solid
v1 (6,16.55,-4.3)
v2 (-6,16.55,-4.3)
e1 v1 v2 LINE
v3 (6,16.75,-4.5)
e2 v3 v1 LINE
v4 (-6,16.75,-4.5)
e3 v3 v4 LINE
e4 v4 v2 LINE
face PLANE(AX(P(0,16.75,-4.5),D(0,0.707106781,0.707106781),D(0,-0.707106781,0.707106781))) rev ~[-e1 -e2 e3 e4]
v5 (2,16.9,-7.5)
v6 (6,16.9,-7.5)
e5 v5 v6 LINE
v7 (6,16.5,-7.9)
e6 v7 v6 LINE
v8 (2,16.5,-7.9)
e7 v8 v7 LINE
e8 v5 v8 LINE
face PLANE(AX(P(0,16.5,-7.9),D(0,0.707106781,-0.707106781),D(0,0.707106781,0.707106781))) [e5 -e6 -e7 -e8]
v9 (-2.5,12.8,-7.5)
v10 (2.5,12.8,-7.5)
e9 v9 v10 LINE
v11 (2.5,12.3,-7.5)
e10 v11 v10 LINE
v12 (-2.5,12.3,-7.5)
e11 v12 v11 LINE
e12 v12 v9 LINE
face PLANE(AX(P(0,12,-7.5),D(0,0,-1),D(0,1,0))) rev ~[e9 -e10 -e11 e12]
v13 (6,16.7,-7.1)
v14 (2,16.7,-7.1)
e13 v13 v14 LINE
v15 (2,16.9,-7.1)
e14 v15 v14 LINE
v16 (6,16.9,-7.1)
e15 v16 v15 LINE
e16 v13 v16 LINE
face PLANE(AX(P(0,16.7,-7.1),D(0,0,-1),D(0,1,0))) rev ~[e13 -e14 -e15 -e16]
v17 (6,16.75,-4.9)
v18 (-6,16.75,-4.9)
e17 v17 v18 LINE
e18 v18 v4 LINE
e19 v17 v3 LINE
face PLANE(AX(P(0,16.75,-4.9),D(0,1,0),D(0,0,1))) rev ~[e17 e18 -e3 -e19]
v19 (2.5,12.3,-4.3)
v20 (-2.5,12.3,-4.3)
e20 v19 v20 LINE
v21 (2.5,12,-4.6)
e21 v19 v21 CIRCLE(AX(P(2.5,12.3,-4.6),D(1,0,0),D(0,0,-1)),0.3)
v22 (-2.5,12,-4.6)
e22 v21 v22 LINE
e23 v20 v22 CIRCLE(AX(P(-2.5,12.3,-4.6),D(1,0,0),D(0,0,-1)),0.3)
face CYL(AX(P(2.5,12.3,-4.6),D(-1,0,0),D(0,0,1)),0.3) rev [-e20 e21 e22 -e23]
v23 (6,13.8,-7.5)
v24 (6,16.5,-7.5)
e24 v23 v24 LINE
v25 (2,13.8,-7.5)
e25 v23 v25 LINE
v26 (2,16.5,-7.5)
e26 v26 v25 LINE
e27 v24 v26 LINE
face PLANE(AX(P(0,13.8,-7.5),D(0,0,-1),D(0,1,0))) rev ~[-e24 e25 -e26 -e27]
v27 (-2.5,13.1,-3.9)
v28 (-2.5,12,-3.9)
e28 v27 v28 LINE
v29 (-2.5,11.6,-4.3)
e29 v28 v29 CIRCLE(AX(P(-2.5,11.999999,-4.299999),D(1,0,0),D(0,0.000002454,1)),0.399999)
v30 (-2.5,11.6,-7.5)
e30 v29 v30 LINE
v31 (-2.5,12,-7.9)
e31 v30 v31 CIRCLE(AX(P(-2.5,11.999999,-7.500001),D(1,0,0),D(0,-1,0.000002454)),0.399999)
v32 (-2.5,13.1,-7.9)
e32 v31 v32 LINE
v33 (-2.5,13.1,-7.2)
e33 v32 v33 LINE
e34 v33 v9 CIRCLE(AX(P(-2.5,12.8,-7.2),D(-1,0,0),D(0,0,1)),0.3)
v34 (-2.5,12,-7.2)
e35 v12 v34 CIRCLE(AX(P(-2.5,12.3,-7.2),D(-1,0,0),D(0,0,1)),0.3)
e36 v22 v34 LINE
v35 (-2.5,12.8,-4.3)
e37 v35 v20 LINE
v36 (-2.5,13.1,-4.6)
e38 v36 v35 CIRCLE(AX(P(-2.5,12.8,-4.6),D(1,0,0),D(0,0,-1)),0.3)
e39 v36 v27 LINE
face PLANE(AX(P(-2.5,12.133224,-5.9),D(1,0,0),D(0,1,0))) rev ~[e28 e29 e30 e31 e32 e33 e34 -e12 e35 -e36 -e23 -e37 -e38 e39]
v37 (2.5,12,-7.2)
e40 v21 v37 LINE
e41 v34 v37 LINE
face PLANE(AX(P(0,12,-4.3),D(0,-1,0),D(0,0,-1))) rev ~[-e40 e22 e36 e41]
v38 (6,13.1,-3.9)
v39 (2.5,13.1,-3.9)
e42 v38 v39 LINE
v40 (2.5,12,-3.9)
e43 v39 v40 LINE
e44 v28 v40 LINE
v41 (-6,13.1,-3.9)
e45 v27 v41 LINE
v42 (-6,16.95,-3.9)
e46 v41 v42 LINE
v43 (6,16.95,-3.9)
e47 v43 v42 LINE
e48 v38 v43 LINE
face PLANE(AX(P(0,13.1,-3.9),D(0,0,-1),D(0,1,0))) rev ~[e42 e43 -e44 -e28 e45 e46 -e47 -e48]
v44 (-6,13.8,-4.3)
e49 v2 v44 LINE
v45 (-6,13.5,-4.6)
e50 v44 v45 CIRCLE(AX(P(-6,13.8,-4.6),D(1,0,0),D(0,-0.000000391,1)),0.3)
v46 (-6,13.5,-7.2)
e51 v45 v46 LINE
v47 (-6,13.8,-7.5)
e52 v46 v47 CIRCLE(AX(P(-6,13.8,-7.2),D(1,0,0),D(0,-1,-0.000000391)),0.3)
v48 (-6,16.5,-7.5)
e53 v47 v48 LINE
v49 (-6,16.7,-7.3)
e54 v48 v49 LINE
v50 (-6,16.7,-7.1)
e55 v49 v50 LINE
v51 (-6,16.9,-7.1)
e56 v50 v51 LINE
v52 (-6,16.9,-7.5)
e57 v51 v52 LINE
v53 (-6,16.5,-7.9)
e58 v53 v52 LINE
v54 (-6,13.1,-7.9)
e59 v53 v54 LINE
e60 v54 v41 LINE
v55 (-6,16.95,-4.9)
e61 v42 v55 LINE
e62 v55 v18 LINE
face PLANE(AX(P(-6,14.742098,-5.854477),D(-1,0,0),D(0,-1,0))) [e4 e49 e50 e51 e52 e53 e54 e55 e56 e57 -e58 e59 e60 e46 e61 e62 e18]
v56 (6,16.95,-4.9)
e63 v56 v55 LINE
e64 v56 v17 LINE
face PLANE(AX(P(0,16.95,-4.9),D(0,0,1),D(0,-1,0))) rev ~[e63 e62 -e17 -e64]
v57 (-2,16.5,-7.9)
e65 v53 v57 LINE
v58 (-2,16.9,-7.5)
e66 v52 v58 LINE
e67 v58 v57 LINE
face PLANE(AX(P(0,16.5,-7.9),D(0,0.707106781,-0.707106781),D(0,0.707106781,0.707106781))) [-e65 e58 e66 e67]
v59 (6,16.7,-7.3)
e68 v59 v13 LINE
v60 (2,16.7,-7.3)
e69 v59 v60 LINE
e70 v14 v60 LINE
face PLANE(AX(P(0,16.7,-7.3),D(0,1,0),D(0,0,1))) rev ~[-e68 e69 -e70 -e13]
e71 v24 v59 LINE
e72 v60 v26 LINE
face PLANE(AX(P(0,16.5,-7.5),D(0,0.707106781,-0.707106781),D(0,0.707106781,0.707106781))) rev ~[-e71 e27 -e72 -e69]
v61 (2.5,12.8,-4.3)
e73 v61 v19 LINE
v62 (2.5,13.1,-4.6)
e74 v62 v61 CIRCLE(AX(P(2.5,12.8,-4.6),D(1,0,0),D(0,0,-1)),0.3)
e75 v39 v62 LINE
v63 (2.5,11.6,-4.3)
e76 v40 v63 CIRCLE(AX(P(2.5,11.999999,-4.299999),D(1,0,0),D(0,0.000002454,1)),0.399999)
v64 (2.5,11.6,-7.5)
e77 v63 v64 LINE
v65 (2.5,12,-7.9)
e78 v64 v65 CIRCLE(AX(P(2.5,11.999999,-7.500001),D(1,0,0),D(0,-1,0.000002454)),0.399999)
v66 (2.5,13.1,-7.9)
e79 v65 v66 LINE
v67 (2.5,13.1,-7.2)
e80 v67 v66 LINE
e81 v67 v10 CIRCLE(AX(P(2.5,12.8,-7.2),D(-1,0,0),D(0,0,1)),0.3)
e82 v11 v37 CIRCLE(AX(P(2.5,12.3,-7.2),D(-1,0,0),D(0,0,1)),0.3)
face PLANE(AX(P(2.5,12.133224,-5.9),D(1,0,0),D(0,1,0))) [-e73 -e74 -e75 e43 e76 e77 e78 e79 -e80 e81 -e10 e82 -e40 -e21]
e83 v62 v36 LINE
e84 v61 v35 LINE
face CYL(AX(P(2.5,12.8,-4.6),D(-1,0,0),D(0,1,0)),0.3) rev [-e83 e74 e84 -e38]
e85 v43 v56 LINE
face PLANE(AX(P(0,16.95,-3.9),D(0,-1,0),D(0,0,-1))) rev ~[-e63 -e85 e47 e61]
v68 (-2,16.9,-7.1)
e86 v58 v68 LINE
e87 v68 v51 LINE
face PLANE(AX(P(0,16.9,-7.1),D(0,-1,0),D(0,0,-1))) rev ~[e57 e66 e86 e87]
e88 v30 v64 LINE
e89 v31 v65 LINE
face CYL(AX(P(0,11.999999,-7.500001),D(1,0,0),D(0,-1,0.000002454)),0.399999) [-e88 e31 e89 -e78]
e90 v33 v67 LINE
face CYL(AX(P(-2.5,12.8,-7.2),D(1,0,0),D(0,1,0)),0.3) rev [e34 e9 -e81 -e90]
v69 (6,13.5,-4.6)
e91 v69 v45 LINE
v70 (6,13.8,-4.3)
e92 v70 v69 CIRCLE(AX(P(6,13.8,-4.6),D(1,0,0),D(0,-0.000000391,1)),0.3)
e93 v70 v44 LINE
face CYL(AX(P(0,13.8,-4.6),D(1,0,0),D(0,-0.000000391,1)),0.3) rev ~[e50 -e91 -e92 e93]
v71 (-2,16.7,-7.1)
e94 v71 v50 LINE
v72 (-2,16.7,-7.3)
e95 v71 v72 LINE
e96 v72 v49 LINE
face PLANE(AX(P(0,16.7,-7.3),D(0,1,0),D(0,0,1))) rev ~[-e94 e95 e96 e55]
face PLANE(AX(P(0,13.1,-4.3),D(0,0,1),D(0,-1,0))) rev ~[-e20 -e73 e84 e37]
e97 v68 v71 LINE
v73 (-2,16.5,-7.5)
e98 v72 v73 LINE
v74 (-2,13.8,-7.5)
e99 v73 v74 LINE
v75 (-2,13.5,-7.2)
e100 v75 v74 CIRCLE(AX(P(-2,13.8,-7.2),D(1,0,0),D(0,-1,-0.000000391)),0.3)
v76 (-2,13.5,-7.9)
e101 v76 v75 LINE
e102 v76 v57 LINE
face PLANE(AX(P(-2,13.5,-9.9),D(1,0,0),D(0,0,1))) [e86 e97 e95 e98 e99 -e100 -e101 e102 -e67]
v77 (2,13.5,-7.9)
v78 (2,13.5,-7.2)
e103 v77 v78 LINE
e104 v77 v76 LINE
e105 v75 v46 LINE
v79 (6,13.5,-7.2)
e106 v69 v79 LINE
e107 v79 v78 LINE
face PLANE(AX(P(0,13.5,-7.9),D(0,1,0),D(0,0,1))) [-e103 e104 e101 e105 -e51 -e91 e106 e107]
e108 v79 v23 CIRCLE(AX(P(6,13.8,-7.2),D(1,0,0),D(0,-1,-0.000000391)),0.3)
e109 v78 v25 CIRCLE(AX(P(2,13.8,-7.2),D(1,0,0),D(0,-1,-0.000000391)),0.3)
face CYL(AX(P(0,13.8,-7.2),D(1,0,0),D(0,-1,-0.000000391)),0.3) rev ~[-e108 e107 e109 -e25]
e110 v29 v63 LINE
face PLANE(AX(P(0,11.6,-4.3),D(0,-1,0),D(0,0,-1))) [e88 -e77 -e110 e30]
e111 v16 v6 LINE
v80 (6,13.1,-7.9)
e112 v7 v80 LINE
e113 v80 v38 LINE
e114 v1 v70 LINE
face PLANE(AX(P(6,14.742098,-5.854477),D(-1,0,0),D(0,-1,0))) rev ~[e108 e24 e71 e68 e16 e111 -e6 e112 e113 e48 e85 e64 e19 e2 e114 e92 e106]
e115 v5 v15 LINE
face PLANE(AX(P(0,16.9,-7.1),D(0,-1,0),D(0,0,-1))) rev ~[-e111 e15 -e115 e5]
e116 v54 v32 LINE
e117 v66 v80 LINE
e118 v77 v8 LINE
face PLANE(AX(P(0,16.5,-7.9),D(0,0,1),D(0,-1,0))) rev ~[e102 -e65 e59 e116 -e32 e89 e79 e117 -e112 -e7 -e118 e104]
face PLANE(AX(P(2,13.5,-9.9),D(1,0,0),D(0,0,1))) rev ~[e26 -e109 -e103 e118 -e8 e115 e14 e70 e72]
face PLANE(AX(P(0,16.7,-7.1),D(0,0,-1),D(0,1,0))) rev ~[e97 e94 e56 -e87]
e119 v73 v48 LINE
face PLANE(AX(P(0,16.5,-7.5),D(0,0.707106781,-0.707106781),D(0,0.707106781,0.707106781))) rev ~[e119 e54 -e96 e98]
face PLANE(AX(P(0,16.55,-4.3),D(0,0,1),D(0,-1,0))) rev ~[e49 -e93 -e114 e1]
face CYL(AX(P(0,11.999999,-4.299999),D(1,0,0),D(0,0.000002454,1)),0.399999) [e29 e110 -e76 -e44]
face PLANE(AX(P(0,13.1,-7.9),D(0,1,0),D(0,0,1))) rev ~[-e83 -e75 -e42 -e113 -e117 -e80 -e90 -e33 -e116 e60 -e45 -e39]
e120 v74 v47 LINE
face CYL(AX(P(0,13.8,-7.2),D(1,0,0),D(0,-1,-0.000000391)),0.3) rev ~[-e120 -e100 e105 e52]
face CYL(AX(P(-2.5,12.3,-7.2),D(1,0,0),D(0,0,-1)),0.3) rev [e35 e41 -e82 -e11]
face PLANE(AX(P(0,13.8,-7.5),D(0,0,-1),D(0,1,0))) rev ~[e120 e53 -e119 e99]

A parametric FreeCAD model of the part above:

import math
import FreeCAD as App
import Part
import Sketcher
Q = App.Units.Quantity


def edges_at(feature, points):
    """Names of the edges that pass closest to the given points."""
    edges = feature.Shape.Edges
    near = lambda p: min(range(len(edges)), key=lambda i: edges[i].distToShape(Part.Vertex(*p))[0])
    return sorted({f"Edge{near(p) + 1}" for p in points})


def add_polygon(sketch, points):
    """Adds a closed chain of lines whose ends are joined by coincident constraints."""
    first, n = sketch.GeometryCount, len(points)
    for a, b in zip(points, points[1:] + points[:1]):
        sketch.addGeometry(Part.LineSegment(App.Vector(*a, 0), App.Vector(*b, 0)), False)
    for i in range(n):
        sketch.addConstraint(Sketcher.Constraint("Coincident", first + i, 2, first + (i + 1) % n, 1))

doc = App.newDocument("Part")
body = doc.addObject("PartDesign::Body", "Body")

# Sketch on YZ plane
sketch1 = body.newObject("Sketcher::SketchObject", "Sketch")
sketch1.AttachmentSupport = (doc.getObject("YZ_Plane"), [""])
sketch1.MapMode = "FlatFace"
sketch1.addGeometry([
    Part.LineSegment(App.Vector(13.1, -3.9, 0), App.Vector(13.1, -7.9, 0)),  # 0
    Part.LineSegment(App.Vector(13.1, -7.9, 0), App.Vector(16.5, -7.9, 0)),  # 1
    Part.LineSegment(App.Vector(16.5, -7.9, 0), App.Vector(16.9, -7.5, 0)),  # 2
    Part.LineSegment(App.Vector(16.9, -7.5, 0), App.Vector(16.9, -7.1, 0)),  # 3
    Part.LineSegment(App.Vector(16.9, -7.1, 0), App.Vector(16.7, -7.1, 0)),  # 4
    Part.LineSegment(App.Vector(16.7, -7.1, 0), App.Vector(16.7, -7.3, 0)),  # 5
    Part.LineSegment(App.Vector(16.7, -7.3, 0), App.Vector(16.5, -7.5, 0)),  # 6
    Part.LineSegment(App.Vector(16.5, -7.5, 0), App.Vector(13.8, -7.5, 0)),  # 7
    Part.ArcOfCircle(Part.Circle(App.Vector(13.8, -7.2, 0), App.Vector(0, 0, 1), 0.3), math.radians(-180), math.radians(-90)),  # 8
    Part.LineSegment(App.Vector(13.5, -7.2, 0), App.Vector(13.5, -4.6, 0)),  # 9
    Part.ArcOfCircle(Part.Circle(App.Vector(13.8, -4.6, 0), App.Vector(0, 0, 1), 0.3), math.radians(90), math.radians(180)),  # 10
    Part.LineSegment(App.Vector(13.8, -4.3, 0), App.Vector(16.55, -4.3, 0)),  # 11
    Part.LineSegment(App.Vector(16.55, -4.3, 0), App.Vector(16.75, -4.5, 0)),  # 12
    Part.LineSegment(App.Vector(16.75, -4.5, 0), App.Vector(16.75, -4.9, 0)),  # 13
    Part.LineSegment(App.Vector(16.75, -4.9, 0), App.Vector(16.95, -4.9, 0)),  # 14
    Part.LineSegment(App.Vector(16.95, -4.9, 0), App.Vector(16.95, -3.9, 0)),  # 15
    Part.LineSegment(App.Vector(16.95, -3.9, 0), App.Vector(13.1, -3.9, 0)),  # 16
], False)
sketch1.addConstraint([
    Sketcher.Constraint("Coincident", 0, 2, 1, 1),
    Sketcher.Constraint("Coincident", 1, 2, 2, 1),
    Sketcher.Constraint("Coincident", 2, 2, 3, 1),
    Sketcher.Constraint("Coincident", 3, 2, 4, 1),
    Sketcher.Constraint("Coincident", 4, 2, 5, 1),
    Sketcher.Constraint("Coincident", 5, 2, 6, 1),
    Sketcher.Constraint("Coincident", 6, 2, 7, 1),
    Sketcher.Constraint("Tangent", 7, 2, 8, 2),
    Sketcher.Constraint("Tangent", 8, 1, 9, 1),
    Sketcher.Constraint("Tangent", 9, 2, 10, 2),
    Sketcher.Constraint("Tangent", 10, 1, 11, 1),
    Sketcher.Constraint("Coincident", 11, 2, 12, 1),
    Sketcher.Constraint("Coincident", 12, 2, 13, 1),
    Sketcher.Constraint("Coincident", 13, 2, 14, 1),
    Sketcher.Constraint("Coincident", 14, 2, 15, 1),
    Sketcher.Constraint("Coincident", 15, 2, 16, 1),
    Sketcher.Constraint("Coincident", 16, 2, 0, 1),
    Sketcher.Constraint("Vertical", 0),
    Sketcher.Constraint("Horizontal", 1),
    Sketcher.Constraint("Vertical", 3),
    Sketcher.Constraint("Horizontal", 4),
    Sketcher.Constraint("Vertical", 5),
    Sketcher.Constraint("Horizontal", 7),
    Sketcher.Constraint("Vertical", 9),
    Sketcher.Constraint("Horizontal", 11),
    Sketcher.Constraint("Vertical", 13),
    Sketcher.Constraint("Horizontal", 14),
    Sketcher.Constraint("Vertical", 15),
    Sketcher.Constraint("Horizontal", 16),
    Sketcher.Constraint("Equal", 8, 10),
    Sketcher.Constraint("Parallel", 2, 6),
    Sketcher.Constraint("Perpendicular", 6, 12),
    Sketcher.Constraint("Horizontal", 2, 2, 6, 2),
    Sketcher.Constraint("Vertical", 1, 2, 6, 2),
    Sketcher.Constraint("Equal", 4, 14),
    Sketcher.Constraint("Equal", 14, 5),
    Sketcher.Constraint("Equal", 3, 13),
    Sketcher.Constraint("Equal", 6, 12),
    Sketcher.Constraint("Radius", 8, 0.3),
    Sketcher.Constraint("DistanceY", 0, 2, 0, 1, 4.0),
    Sketcher.Constraint("DistanceY", 15, 1, 15, 2, 1.0),
    Sketcher.Constraint("Angle", 2, Q("45 deg")),
    Sketcher.Constraint("DistanceX", 1, 1, 1, 2, 3.4),
    Sketcher.Constraint("DistanceX", 4, 2, 4, 1, 0.2),
    Sketcher.Constraint("DistanceX", 7, 2, 7, 1, 2.7),
    Sketcher.Constraint("DistanceY", 3, 1, 3, 2, 0.4),
    Sketcher.Constraint("DistanceX", 11, 1, 11, 2, 2.75),
    Sketcher.Constraint("DistanceX", -1, 1, 8, 3, 13.8),
    Sketcher.Constraint("DistanceY", 8, 3, -1, 1, 7.2),
])
pad1 = body.newObject("PartDesign::Pad", "Pad")
pad1.Profile = sketch1
pad1.Length = 12
pad1.Midplane = True

# Sketch on XZ plane
sketch2 = body.newObject("Sketcher::SketchObject", "Sketch001")
sketch2.AttachmentSupport = (doc.getObject("XZ_Plane"), [""])
sketch2.MapMode = "FlatFace"
sketch2.AttachmentOffset = App.Placement(App.Vector(0, 0, -13.5), App.Rotation())
add_polygon(sketch2, [(2, -9.9), (-2, -9.9), (-2, -5.9), (2, -5.9)])  # lines 0-3
sketch2.addConstraint([
    Sketcher.Constraint("Horizontal", 0),
    Sketcher.Constraint("Vertical", 1),
    Sketcher.Constraint("Horizontal", 2),
    Sketcher.Constraint("Vertical", 3),
    Sketcher.Constraint("Equal", 2, 1),
    Sketcher.Constraint("DistanceX", 0, 2, 0, 1, 4.0),
    Sketcher.Constraint("DistanceX", 0, 2, -1, 1, 2.0),
    Sketcher.Constraint("DistanceY", 0, 2, -1, 1, 9.9),
])
pocket1 = body.newObject("PartDesign::Pocket", "Pocket")
pocket1.Profile = sketch2
pocket1.Type = "ThroughAll"

# Sketch on YZ plane
sketch3 = body.newObject("Sketcher::SketchObject", "Sketch002")
sketch3.AttachmentSupport = (doc.getObject("YZ_Plane"), [""])
sketch3.MapMode = "FlatFace"
sketch3.addGeometry([
    Part.LineSegment(App.Vector(13.1, -3.9, 0), App.Vector(12, -3.9, 0)),  # 0
    Part.ArcOfCircle(Part.Circle(App.Vector(12, -4.3, 0), App.Vector(0, 0, 1), 0.4), math.radians(90), math.radians(180)),  # 1
    Part.LineSegment(App.Vector(11.6, -4.3, 0), App.Vector(11.6, -7.5, 0)),  # 2
    Part.ArcOfCircle(Part.Circle(App.Vector(12, -7.5, 0), App.Vector(0, 0, 1), 0.4), math.radians(180), math.radians(270)),  # 3
    Part.LineSegment(App.Vector(12, -7.9, 0), App.Vector(13.1, -7.9, 0)),  # 4
    Part.LineSegment(App.Vector(13.1, -7.9, 0), App.Vector(13.1, -7.5, 0)),  # 5
    Part.LineSegment(App.Vector(13.1, -7.5, 0), App.Vector(12, -7.5, 0)),  # 6
    Part.LineSegment(App.Vector(12, -7.5, 0), App.Vector(12, -4.3, 0)),  # 7
    Part.LineSegment(App.Vector(12, -4.3, 0), App.Vector(13.1, -4.3, 0)),  # 8
    Part.LineSegment(App.Vector(13.1, -4.3, 0), App.Vector(13.1, -3.9, 0)),  # 9
], False)
sketch3.addConstraint([
    Sketcher.Constraint("Coincident", 0, 2, 1, 1),
    Sketcher.Constraint("Coincident", 1, 2, 2, 1),
    Sketcher.Constraint("Coincident", 2, 2, 3, 1),
    Sketcher.Constraint("Coincident", 3, 2, 4, 1),
    Sketcher.Constraint("Coincident", 4, 2, 5, 1),
    Sketcher.Constraint("Coincident", 5, 2, 6, 1),
    Sketcher.Constraint("Coincident", 6, 2, 7, 1),
    Sketcher.Constraint("Coincident", 7, 2, 8, 1),
    Sketcher.Constraint("Coincident", 8, 2, 9, 1),
    Sketcher.Constraint("Coincident", 9, 2, 0, 1),
    Sketcher.Constraint("Horizontal", 0),
    Sketcher.Constraint("Vertical", 2),
    Sketcher.Constraint("Horizontal", 4),
    Sketcher.Constraint("Vertical", 5),
    Sketcher.Constraint("Horizontal", 6),
    Sketcher.Constraint("Vertical", 7),
    Sketcher.Constraint("Horizontal", 8),
    Sketcher.Constraint("Vertical", 9),
    Sketcher.Constraint("Coincident", 6, 2, 3, 3),
    Sketcher.Constraint("Coincident", 7, 2, 1, 3),
    Sketcher.Constraint("Horizontal", 3, 3, 2, 2),
    Sketcher.Constraint("Horizontal", 1, 2, 7, 2),
    Sketcher.Constraint("Vertical", 3, 3, 0, 2),
    Sketcher.Constraint("Vertical", 0, 2, 3, 2),
    Sketcher.Constraint("Vertical", 5, 2, 8, 2),
    Sketcher.Constraint("Radius", 1, 0.399999),
    Sketcher.Constraint("DistanceX", 0, 2, 0, 1, 1.1),
    Sketcher.Constraint("DistanceY", 2, 2, 2, 1, 3.2),
    Sketcher.Constraint("DistanceX", -1, 1, 1, 3, 11.999999),
    Sketcher.Constraint("DistanceY", 1, 3, -1, 1, 4.299999),
])
pad2 = body.newObject("PartDesign::Pad", "Pad001")
pad2.Profile = sketch3
pad2.Length = 5
pad2.Midplane = True
doc.recompute()

fillet = body.newObject("PartDesign::Fillet", "Fillet")
fillet.Base = (pad2, edges_at(pad2, [
    (0, 12, -4.3),
    (0, 12, -7.5),
    (0, 13.1, -7.5),
    (0, 13.1, -4.3),
]))
fillet.Radius = 0.3

doc.recompute()
